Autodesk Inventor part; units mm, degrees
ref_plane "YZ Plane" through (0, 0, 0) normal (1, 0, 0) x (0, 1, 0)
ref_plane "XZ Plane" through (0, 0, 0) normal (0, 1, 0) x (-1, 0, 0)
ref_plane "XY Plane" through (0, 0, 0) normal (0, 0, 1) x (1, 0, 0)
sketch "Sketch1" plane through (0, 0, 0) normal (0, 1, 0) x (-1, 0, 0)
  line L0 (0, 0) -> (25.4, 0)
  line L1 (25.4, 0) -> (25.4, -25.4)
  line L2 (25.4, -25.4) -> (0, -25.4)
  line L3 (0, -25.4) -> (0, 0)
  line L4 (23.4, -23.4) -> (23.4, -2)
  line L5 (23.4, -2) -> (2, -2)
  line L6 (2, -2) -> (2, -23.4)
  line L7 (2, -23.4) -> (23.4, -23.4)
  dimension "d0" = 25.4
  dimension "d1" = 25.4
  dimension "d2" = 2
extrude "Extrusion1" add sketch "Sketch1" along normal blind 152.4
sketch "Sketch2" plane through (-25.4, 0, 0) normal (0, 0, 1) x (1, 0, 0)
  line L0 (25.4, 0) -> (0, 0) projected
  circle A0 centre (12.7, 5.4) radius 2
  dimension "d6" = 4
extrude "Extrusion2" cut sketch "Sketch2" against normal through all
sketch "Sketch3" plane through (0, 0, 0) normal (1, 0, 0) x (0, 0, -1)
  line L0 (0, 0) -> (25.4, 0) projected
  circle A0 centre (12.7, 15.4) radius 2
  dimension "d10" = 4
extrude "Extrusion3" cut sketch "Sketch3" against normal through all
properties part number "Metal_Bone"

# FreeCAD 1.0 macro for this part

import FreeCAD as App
import Part
import Sketcher

V = App.Vector


def add_polygon(sketch, points):
    """Adds a closed chain of lines whose ends are joined by coincident constraints."""
    first, n = sketch.GeometryCount, len(points)
    for a, b in zip(points, points[1:] + points[:1]):
        sketch.addGeometry(Part.LineSegment(App.Vector(*a, 0), App.Vector(*b, 0)), False)
    for i in range(n):
        sketch.addConstraint(Sketcher.Constraint("Coincident", first + i, 2, first + (i + 1) % n, 1))

doc = App.newDocument("Part")
body = doc.addObject("PartDesign::Body", "Body")

# Sketch on XZ plane
sketch1 = body.newObject("Sketcher::SketchObject", "Sketch")
sketch1.AttachmentSupport = (doc.getObject("XZ_Plane"), [""])
sketch1.MapMode = "FlatFace"
add_polygon(sketch1, [(-25.4, 0), (0, 0), (0, -25.4), (-25.4, -25.4)])  # lines 0-3
add_polygon(sketch1, [(-23.4, -2), (-23.4, -23.4), (-2, -23.4), (-2, -2)])  # lines 4-7
sketch1.addConstraint([
    Sketcher.Constraint("Horizontal", 0),
    Sketcher.Constraint("Vertical", 1),
    Sketcher.Constraint("Horizontal", 2),
    Sketcher.Constraint("Vertical", 3),
    Sketcher.Constraint("Vertical", 4),
    Sketcher.Constraint("Horizontal", 5),
    Sketcher.Constraint("Vertical", 6),
    Sketcher.Constraint("Horizontal", 7),
    Sketcher.Constraint("Coincident", 0, 2, -1, 1),
    Sketcher.Constraint("Equal", 2, 1),
    Sketcher.Constraint("Equal", 7, 4),
    Sketcher.Constraint("DistanceX", 0, 1, 0, 2, 25.4),
    Sketcher.Constraint("DistanceX", 5, 2, -1, 1, 2.0),
    Sketcher.Constraint("DistanceY", 6, 2, -1, 1, 2.0),
    Sketcher.Constraint("DistanceX", 2, 2, 4, 2, 2.0),
])
pad1 = body.newObject("PartDesign::Pad", "Pad")
pad1.Profile = sketch1
pad1.Length = 152.4
pad1.Reversed = True

# Sketch on XY plane
sketch2 = body.newObject("Sketcher::SketchObject", "Sketch001")
sketch2.AttachmentSupport = (doc.getObject("XY_Plane"), [""])
sketch2.MapMode = "FlatFace"
sketch2.addGeometry(Part.Circle(V(-12.7, 5.4, 0), V(0, 0, 1), 2), False)
sketch2.addConstraint([
    Sketcher.Constraint("Diameter", 0, 4.0),
    Sketcher.Constraint("DistanceX", 0, 3, -1, 1, 12.7),
    Sketcher.Constraint("DistanceY", -1, 1, 0, 3, 5.4),
])
pocket1 = body.newObject("PartDesign::Pocket", "Pocket")
pocket1.Profile = sketch2
pocket1.Type = "ThroughAll"

# Sketch on YZ plane
sketch3 = body.newObject("Sketcher::SketchObject", "Sketch002")
sketch3.AttachmentSupport = (doc.getObject("YZ_Plane"), [""])
sketch3.MapMode = "FlatFace"
sketch3.addGeometry(Part.Circle(V(15.4, -12.7, 0), V(0, 0, 1), 2), False)
sketch3.addConstraint([
    Sketcher.Constraint("Diameter", 0, 4.0),
    Sketcher.Constraint("DistanceX", -1, 1, 0, 3, 15.4),
    Sketcher.Constraint("DistanceY", 0, 3, -1, 1, 12.7),
])
pocket2 = body.newObject("PartDesign::Pocket", "Pocket001")
pocket2.Profile = sketch3
pocket2.Type = "ThroughAll"

doc.recompute()
